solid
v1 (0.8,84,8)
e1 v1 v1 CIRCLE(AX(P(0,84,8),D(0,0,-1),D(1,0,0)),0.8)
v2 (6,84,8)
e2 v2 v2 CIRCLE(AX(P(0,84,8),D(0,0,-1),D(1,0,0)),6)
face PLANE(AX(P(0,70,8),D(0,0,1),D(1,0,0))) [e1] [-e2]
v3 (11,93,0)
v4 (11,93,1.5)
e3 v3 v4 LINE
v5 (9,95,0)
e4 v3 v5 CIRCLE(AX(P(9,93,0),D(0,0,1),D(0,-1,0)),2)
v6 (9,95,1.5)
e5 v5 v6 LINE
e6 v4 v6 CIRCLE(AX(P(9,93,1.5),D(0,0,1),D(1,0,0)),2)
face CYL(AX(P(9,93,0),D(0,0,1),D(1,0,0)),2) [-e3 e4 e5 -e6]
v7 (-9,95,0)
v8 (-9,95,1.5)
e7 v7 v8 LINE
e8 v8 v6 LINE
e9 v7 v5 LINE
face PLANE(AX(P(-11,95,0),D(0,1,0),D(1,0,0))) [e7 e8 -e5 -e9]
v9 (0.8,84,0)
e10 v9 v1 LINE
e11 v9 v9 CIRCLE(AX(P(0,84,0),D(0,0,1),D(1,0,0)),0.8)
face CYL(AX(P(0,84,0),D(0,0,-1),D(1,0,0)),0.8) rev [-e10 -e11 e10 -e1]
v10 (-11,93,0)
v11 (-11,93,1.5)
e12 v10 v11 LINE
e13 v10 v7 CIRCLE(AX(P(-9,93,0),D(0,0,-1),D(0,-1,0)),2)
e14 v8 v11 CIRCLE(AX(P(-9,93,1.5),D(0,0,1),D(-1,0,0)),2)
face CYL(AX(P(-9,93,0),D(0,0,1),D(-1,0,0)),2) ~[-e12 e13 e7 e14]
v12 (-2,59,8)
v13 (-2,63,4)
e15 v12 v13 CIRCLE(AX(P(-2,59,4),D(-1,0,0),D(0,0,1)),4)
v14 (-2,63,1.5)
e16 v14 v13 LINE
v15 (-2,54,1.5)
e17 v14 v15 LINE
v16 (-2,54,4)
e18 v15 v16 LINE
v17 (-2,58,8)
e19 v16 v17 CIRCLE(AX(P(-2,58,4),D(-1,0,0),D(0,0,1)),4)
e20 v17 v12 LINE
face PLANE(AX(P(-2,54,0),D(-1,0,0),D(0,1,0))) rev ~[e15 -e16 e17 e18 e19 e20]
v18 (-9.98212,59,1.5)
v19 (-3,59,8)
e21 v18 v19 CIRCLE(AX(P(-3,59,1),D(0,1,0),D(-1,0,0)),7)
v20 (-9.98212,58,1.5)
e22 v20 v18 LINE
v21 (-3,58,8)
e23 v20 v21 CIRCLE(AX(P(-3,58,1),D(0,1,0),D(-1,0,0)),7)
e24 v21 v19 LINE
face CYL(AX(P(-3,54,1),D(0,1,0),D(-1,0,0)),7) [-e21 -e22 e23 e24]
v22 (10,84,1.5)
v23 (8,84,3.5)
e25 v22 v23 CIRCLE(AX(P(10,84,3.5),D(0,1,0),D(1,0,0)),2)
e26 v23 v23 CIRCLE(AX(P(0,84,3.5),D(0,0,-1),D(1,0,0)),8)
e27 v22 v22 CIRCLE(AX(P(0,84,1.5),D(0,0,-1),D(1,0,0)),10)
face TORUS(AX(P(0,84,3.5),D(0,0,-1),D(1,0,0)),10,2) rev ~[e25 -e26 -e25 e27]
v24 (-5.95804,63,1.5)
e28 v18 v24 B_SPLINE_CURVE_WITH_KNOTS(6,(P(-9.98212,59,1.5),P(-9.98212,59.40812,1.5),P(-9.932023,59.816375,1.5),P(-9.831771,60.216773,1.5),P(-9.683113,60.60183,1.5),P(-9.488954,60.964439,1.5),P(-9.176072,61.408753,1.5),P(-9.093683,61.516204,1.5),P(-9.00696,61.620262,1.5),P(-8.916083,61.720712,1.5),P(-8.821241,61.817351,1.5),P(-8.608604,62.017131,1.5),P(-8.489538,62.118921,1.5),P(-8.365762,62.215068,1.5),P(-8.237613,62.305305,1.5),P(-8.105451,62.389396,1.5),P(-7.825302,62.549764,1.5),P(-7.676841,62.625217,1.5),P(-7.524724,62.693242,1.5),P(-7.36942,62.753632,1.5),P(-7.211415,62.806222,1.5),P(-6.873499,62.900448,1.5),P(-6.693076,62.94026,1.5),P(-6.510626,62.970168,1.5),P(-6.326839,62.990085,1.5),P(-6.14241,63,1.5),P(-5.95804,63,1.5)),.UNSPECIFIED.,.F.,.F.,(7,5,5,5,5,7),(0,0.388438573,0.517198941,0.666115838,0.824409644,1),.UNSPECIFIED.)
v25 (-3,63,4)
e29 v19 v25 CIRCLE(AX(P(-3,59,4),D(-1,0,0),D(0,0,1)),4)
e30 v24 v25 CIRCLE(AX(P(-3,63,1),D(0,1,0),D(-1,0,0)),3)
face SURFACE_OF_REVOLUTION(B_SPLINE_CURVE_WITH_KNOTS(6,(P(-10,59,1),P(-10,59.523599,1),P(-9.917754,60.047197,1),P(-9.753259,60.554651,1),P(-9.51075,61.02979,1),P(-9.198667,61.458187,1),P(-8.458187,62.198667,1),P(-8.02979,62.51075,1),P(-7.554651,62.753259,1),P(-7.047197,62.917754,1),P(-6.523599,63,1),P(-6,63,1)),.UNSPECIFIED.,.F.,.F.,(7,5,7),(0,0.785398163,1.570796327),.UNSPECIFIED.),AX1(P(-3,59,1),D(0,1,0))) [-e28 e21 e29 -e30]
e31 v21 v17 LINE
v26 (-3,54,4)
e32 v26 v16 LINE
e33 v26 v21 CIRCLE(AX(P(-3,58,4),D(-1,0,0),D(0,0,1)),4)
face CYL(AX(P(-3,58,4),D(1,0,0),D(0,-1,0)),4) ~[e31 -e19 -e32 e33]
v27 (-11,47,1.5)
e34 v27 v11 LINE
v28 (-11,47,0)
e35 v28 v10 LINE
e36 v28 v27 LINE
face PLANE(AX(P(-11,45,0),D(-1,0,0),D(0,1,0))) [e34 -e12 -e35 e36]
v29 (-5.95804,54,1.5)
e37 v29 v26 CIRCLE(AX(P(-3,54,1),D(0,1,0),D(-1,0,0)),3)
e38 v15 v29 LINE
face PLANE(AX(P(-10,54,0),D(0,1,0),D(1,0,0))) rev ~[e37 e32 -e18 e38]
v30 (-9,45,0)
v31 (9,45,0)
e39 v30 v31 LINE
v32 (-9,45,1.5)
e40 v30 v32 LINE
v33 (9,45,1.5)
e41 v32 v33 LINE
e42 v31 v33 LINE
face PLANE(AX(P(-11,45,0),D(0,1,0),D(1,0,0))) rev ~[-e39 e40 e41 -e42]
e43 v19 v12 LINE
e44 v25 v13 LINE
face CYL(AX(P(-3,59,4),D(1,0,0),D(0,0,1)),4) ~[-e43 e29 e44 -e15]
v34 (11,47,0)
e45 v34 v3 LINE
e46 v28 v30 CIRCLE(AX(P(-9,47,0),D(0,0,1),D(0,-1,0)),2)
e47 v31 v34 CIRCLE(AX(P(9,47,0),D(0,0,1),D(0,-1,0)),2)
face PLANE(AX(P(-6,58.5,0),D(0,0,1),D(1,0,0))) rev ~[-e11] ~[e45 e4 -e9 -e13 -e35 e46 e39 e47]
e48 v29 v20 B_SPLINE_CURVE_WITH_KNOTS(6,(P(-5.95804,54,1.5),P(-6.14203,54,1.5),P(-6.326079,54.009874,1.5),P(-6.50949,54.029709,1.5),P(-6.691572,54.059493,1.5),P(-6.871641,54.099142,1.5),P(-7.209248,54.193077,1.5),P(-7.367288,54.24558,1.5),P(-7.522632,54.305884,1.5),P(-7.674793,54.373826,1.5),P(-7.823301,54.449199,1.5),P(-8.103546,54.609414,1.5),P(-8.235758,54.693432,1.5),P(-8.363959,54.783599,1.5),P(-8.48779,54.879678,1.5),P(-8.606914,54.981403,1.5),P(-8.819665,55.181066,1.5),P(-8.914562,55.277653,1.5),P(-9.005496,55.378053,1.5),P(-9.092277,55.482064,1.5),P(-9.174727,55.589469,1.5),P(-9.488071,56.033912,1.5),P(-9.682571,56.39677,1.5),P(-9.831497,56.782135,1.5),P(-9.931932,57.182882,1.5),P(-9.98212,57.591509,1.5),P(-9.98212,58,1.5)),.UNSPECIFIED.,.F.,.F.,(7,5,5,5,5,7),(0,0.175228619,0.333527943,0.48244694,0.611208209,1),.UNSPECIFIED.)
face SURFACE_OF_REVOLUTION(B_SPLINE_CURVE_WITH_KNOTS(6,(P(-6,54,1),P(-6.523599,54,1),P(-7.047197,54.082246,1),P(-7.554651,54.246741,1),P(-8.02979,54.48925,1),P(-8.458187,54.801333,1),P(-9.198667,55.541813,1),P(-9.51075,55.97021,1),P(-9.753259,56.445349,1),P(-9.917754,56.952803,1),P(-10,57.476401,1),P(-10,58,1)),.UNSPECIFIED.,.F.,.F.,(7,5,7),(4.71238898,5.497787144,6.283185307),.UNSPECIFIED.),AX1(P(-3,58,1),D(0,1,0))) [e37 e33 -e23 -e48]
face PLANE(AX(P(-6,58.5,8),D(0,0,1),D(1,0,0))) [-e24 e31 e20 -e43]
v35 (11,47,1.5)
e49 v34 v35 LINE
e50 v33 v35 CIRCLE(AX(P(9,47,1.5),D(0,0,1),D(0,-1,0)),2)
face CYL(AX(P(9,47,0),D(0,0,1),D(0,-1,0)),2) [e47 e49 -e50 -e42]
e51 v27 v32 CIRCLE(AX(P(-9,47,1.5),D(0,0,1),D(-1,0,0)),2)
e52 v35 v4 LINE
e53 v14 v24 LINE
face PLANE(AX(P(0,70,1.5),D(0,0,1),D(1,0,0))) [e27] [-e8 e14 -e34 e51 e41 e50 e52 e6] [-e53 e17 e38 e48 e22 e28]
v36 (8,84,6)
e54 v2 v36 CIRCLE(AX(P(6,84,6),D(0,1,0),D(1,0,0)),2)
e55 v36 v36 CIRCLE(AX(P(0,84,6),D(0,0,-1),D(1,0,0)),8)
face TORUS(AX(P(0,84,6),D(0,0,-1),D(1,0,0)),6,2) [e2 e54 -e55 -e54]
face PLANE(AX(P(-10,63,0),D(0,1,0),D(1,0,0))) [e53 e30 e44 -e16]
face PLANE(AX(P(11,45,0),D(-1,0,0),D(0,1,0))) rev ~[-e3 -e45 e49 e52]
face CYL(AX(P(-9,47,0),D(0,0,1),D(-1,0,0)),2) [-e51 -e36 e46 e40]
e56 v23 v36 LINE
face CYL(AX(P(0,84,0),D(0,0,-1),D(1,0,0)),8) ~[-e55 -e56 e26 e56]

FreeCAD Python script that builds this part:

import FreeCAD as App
import Part
import Sketcher

V = App.Vector
Q = App.Units.Quantity


def edges_at(feature, points):
    """Names of the edges that pass closest to the given points."""
    edges = feature.Shape.Edges
    near = lambda p: min(range(len(edges)), key=lambda i: edges[i].distToShape(Part.Vertex(*p))[0])
    return sorted({f"Edge{near(p) + 1}" for p in points})

doc = App.newDocument("Part")
body = doc.addObject("PartDesign::Body", "Body")

sketch1 = body.newObject("Sketcher::SketchObject", "Sketch")
sketch1.AttachmentSupport = (doc.getObject("XY_Plane"), [""])
sketch1.MapMode = "FlatFace"
sketch1.addGeometry(Part.LineSegment(V(-10, -21, 0), V(-10, -30, 0)), False)
sketch1.addGeometry(Part.LineSegment(V(-10, -30, 0), V(-2, -30, 0)), False)
sketch1.addGeometry(Part.LineSegment(V(-2, -30, 0), V(-2, -21, 0)), False)
sketch1.addGeometry(Part.LineSegment(V(-2, -21, 0), V(-10, -21, 0)), False)
sketch1.addConstraint(Sketcher.Constraint("Coincident", 0, 2, 1, 1))
sketch1.addConstraint(Sketcher.Constraint("Coincident", 1, 2, 2, 1))
sketch1.addConstraint(Sketcher.Constraint("Coincident", 2, 2, 3, 1))
sketch1.addConstraint(Sketcher.Constraint("Coincident", 3, 2, 0, 1))
sketch1.addConstraint(Sketcher.Constraint("Vertical", 0))
sketch1.addConstraint(Sketcher.Constraint("Horizontal", 1))
sketch1.addConstraint(Sketcher.Constraint("Vertical", 2))
sketch1.addConstraint(Sketcher.Constraint("Horizontal", 3))
sketch1.addConstraint(Sketcher.Constraint("DistanceX", 1, 1, 1, 2, Q("8 mm")))
sketch1.addConstraint(Sketcher.Constraint("DistanceY", 0, 2, 0, 1, Q("9 mm")))
sketch1.addConstraint(Sketcher.Constraint("DistanceX", 0, 2, -1, 1, Q("10 mm")))
sketch1.addConstraint(Sketcher.Constraint("DistanceY", 0, 2, -1, 1, Q("30 mm")))
pad1 = body.newObject("PartDesign::Pad", "Pad")
pad1.Profile = sketch1
pad1.Length = 8
doc.recompute()

fillet = body.newObject("PartDesign::Fillet", "Fillet")
fillet.Base = (pad1, edges_at(pad1, [(-10, -25.5, 8)]))
fillet.Radius = 7
doc.recompute()

fillet2 = body.newObject("PartDesign::Fillet", "Fillet001")
fillet2.Base = (fillet, edges_at(fillet, [(-7.95, -30, 5.95), (-7.95, -21, 5.95)]))
fillet2.Radius = 4
body2 = doc.addObject("PartDesign::Body", "Body001")

sketch2 = body2.newObject("Sketcher::SketchObject", "Sketch001")
sketch2.AttachmentSupport = (doc.getObject("XY_Plane001"), [""])
sketch2.MapMode = "FlatFace"
sketch2.addGeometry(Part.Circle(V(0, 0, 0), V(0, 0, 1), 0.8), False)
sketch2.addConstraint(Sketcher.Constraint("Coincident", 0, 3, -1, 1))
sketch2.addConstraint(Sketcher.Constraint("Diameter", 0, Q("1.6 mm")))
pad2 = body2.newObject("PartDesign::Pad", "Pad001")
pad2.Profile = sketch2
pad2.Length = 10
body3 = doc.addObject("PartDesign::Body", "Body002")

sketch3 = body3.newObject("Sketcher::SketchObject", "Sketch002")
sketch3.AttachmentSupport = (doc.getObject("XY_Plane002"), [""])
sketch3.MapMode = "FlatFace"
sketch3.addGeometry(Part.Circle(V(0, 0, 0), V(0, 0, 1), 8), False)
sketch3.addConstraint(Sketcher.Constraint("Coincident", 0, 3, -1, 1))
sketch3.addConstraint(Sketcher.Constraint("Diameter", 0, Q("16 mm")))
pad3 = body3.newObject("PartDesign::Pad", "Pad002")
pad3.Profile = sketch3
pad3.Length = 10
body4 = doc.addObject("PartDesign::Body", "Body003")
body4.AllowCompound = True

sketch4 = body4.newObject("Sketcher::SketchObject", "Sketch003")
sketch4.AttachmentSupport = (doc.getObject("XY_Plane003"), [""])
sketch4.MapMode = "FlatFace"
sketch4.AttachmentOffset = App.Placement(V(0, 0, 1.5), App.Rotation())
sketch4.addGeometry(Part.LineSegment(V(-11, 11, 0), V(-11, -39, 0)), False)
sketch4.addGeometry(Part.LineSegment(V(-11, -39, 0), V(11, -39, 0)), False)
sketch4.addGeometry(Part.LineSegment(V(11, -39, 0), V(11, 11, 0)), False)
sketch4.addGeometry(Part.LineSegment(V(11, 11, 0), V(-11, 11, 0)), False)
sketch4.addConstraint(Sketcher.Constraint("Coincident", 0, 2, 1, 1))
sketch4.addConstraint(Sketcher.Constraint("Coincident", 1, 2, 2, 1))
sketch4.addConstraint(Sketcher.Constraint("Coincident", 2, 2, 3, 1))
sketch4.addConstraint(Sketcher.Constraint("Coincident", 3, 2, 0, 1))
sketch4.addConstraint(Sketcher.Constraint("Vertical", 0))
sketch4.addConstraint(Sketcher.Constraint("Horizontal", 1))
sketch4.addConstraint(Sketcher.Constraint("Vertical", 2))
sketch4.addConstraint(Sketcher.Constraint("Horizontal", 3))
sketch4.addConstraint(Sketcher.Constraint("DistanceX", 1, 1, 1, 2, Q("22 mm")))
sketch4.addConstraint(Sketcher.Constraint("DistanceY", 0, 2, 0, 1, Q("50 mm")))
sketch4.addConstraint(Sketcher.Constraint("DistanceX", 0, 2, -1, 1, Q("11 mm")))
sketch4.addConstraint(Sketcher.Constraint("DistanceY", 0, 2, -1, 1, Q("39 mm")))
pad4 = body4.newObject("PartDesign::Pad", "Pad003")
pad4.Profile = sketch4
pad4.Length = 8
doc.recompute()

boolean = body4.newObject("PartDesign::Boolean", "Boolean")
boolean.Type = "Cut"
boolean.addObjects([body3])
doc.recompute()

fillet3 = body4.newObject("PartDesign::Fillet", "Fillet002")
fillet3.Base = (boolean, edges_at(boolean, [(-8, 0, 1.5)]))
fillet3.Radius = 2
doc.recompute()

boolean2 = body4.newObject("PartDesign::Boolean", "Boolean001")
boolean2.Type = "Fuse"
boolean2.addObjects([body2])
body5 = doc.addObject("PartDesign::Body", "Body004")

sketch5 = body5.newObject("Sketcher::SketchObject", "Sketch004")
sketch5.AttachmentSupport = (doc.getObject("XY_Plane004"), [""])
sketch5.MapMode = "FlatFace"
sketch5.addGeometry(Part.LineSegment(V(-11, 11, 0), V(-11, -39, 0)), False)
sketch5.addGeometry(Part.LineSegment(V(-11, -39, 0), V(11, -39, 0)), False)
sketch5.addGeometry(Part.LineSegment(V(11, -39, 0), V(11, 11, 0)), False)
sketch5.addGeometry(Part.LineSegment(V(11, 11, 0), V(-11, 11, 0)), False)
sketch5.addConstraint(Sketcher.Constraint("Coincident", 0, 2, 1, 1))
sketch5.addConstraint(Sketcher.Constraint("Coincident", 1, 2, 2, 1))
sketch5.addConstraint(Sketcher.Constraint("Coincident", 2, 2, 3, 1))
sketch5.addConstraint(Sketcher.Constraint("Coincident", 3, 2, 0, 1))
sketch5.addConstraint(Sketcher.Constraint("Vertical", 0))
sketch5.addConstraint(Sketcher.Constraint("Horizontal", 1))
sketch5.addConstraint(Sketcher.Constraint("Vertical", 2))
sketch5.addConstraint(Sketcher.Constraint("Horizontal", 3))
sketch5.addConstraint(Sketcher.Constraint("DistanceX", 1, 1, 1, 2, Q("22 mm")))
sketch5.addConstraint(Sketcher.Constraint("DistanceY", 0, 2, 0, 1, Q("50 mm")))
sketch5.addConstraint(Sketcher.Constraint("DistanceX", 0, 2, -1, 1, Q("11 mm")))
sketch5.addConstraint(Sketcher.Constraint("DistanceY", 0, 2, -1, 1, Q("39 mm")))
pad5 = body5.newObject("PartDesign::Pad", "Pad004")
pad5.Profile = sketch5
pad5.Length = 8
doc.recompute()

fillet4 = body5.newObject("PartDesign::Fillet", "Fillet003")
fillet4.Base = (pad5, edges_at(pad5, [
    (-11, -39, 4),
    (-11, 11, 4),
    (11, -39, 4),
    (11, 11, 4),
]))
fillet4.Radius = 2
doc.recompute()

boolean3 = body5.newObject("PartDesign::Boolean", "Boolean002")
boolean3.Type = "Cut"
boolean3.addObjects([body4])
doc.recompute()

fillet5 = body5.newObject("PartDesign::Fillet", "Fillet004")
fillet5.Base = (boolean3, edges_at(boolean3, [(-8, 0, 8)]))
fillet5.Radius = 2
doc.recompute()

boolean4 = body5.newObject("PartDesign::Boolean", "Boolean003")
boolean4.Type = "Fuse"
boolean4.addObjects([body])
body6 = doc.addObject("PartDesign::Body", "Body005")
doc.recompute()

body5.Placement = App.Placement(V(0, 84, 0), App.Rotation(V(0, 0, 1), 0))
boolean5 = body6.newObject("PartDesign::Boolean", "Boolean004")
boolean5.Type = "Fuse"
boolean5.addObjects([body5])

doc.recompute()
